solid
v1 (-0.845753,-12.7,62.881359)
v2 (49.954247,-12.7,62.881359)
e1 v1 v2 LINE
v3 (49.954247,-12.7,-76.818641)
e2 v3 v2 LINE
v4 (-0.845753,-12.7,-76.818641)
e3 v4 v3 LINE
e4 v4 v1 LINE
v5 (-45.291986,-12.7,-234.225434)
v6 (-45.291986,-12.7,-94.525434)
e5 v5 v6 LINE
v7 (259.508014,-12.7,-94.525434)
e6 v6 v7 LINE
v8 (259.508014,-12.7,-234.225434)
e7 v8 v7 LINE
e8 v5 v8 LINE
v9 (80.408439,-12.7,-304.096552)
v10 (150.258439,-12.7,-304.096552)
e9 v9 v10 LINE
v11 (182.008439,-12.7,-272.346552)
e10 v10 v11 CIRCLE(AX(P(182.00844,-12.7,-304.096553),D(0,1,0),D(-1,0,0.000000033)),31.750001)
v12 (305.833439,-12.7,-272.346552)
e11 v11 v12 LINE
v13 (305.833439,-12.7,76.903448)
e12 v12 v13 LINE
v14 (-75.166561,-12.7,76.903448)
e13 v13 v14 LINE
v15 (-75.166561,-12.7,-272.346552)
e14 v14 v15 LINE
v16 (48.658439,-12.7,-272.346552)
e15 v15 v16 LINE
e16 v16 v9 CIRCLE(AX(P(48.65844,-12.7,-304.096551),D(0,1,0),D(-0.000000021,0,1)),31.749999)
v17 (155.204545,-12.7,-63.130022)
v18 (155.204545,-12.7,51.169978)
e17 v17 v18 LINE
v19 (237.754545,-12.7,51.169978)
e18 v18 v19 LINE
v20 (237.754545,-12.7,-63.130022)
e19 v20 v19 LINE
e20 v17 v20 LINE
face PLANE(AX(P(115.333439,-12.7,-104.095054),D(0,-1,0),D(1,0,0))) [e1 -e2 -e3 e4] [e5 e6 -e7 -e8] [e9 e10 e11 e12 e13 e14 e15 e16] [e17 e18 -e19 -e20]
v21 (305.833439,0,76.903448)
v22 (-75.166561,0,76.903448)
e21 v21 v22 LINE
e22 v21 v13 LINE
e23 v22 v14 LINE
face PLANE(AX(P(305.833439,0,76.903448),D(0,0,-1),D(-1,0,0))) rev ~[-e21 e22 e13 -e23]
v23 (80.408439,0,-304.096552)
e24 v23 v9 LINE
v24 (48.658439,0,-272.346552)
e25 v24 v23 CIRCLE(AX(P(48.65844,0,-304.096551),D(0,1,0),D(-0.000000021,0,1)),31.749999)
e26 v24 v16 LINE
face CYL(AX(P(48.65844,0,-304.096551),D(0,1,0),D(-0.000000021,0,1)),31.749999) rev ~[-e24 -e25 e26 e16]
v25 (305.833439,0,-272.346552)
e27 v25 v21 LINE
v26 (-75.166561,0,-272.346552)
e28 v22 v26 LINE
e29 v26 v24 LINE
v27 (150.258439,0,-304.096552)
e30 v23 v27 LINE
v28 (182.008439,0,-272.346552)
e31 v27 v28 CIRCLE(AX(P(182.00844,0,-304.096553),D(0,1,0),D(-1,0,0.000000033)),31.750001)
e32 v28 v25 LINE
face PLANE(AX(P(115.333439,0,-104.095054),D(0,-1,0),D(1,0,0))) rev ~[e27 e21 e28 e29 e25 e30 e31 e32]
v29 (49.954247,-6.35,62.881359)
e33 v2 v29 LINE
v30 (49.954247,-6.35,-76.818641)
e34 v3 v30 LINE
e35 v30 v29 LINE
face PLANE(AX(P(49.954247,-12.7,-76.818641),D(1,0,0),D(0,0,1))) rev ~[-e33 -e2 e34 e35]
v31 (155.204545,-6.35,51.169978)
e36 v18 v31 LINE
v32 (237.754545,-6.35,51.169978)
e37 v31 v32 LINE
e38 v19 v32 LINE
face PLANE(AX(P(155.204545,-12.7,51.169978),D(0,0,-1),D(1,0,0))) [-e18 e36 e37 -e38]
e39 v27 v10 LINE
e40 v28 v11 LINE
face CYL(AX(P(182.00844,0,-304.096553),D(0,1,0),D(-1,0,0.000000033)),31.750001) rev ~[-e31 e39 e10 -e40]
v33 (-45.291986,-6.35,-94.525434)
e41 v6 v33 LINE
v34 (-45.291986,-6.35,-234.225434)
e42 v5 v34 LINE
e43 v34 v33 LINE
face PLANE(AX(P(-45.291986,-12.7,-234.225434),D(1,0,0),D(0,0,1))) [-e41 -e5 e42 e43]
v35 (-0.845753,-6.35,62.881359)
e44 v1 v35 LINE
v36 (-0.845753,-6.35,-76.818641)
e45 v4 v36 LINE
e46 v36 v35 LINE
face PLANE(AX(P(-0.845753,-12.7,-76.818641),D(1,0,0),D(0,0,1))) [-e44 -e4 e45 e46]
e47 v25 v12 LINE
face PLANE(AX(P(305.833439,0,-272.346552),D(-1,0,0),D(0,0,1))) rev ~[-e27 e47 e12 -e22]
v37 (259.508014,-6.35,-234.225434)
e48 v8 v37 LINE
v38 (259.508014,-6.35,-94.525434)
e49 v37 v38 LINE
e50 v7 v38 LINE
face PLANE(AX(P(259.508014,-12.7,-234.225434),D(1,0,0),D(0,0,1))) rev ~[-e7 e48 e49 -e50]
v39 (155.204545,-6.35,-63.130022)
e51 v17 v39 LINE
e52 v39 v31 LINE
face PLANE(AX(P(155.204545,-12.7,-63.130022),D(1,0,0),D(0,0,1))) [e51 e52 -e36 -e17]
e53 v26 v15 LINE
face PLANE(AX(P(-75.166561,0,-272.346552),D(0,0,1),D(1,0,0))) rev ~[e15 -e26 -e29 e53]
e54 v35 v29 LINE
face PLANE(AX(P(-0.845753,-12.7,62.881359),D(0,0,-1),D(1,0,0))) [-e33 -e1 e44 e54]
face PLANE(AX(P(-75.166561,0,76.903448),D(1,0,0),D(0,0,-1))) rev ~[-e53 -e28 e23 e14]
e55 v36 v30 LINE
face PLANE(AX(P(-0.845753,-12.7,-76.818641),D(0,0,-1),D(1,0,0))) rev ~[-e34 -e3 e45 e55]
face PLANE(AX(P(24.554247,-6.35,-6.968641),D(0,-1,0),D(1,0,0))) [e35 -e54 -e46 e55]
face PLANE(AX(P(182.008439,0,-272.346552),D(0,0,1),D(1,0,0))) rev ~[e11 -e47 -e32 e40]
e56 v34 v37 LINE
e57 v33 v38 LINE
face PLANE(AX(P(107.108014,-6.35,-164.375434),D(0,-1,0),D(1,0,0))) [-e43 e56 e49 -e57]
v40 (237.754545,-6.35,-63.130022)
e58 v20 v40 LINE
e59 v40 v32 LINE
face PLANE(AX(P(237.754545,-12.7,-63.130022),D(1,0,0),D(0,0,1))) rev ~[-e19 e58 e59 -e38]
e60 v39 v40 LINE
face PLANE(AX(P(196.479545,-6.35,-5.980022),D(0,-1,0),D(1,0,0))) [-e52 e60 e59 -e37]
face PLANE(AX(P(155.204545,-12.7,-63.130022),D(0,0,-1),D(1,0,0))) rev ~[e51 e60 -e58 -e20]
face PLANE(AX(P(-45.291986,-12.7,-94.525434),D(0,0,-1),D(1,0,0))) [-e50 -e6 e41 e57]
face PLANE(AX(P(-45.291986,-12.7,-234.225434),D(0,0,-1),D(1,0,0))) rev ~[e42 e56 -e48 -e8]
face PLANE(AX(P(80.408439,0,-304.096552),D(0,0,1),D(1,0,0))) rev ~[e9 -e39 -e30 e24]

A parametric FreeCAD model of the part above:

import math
import FreeCAD as App
import Part
import Sketcher
Q = App.Units.Quantity

doc = App.newDocument("Part")
body = doc.addObject("PartDesign::Body", "Body")

# Sketch on XZ plane
sketch1 = body.newObject("Sketcher::SketchObject", "Sketch")
sketch1.AttachmentSupport = (doc.getObject("XZ_Plane"), [""])
sketch1.MapMode = "FlatFace"
sketch1.addGeometry([
    Part.LineSegment(App.Vector(305.833439, 76.903448, 0), App.Vector(-75.166561, 76.903448, 0)),  # 0
    Part.LineSegment(App.Vector(-75.166561, 76.903448, 0), App.Vector(-75.166561, -272.346552, 0)),  # 1
    Part.LineSegment(App.Vector(-75.166561, -272.346552, 0), App.Vector(48.658439, -272.346552, 0)),  # 2
    Part.ArcOfCircle(Part.Circle(App.Vector(48.65844, -304.096551, 0), App.Vector(0, 0, 1), 31.749999), math.radians(-0.000001), math.radians(90.000001)),  # 3
    Part.LineSegment(App.Vector(80.408439, -304.096552, 0), App.Vector(150.258439, -304.096552, 0)),  # 4
    Part.ArcOfCircle(Part.Circle(App.Vector(182.00844, -304.096553, 0), App.Vector(0, 0, 1), 31.750001), math.radians(90.000002), math.radians(179.999998)),  # 5
    Part.LineSegment(App.Vector(182.008439, -272.346552, 0), App.Vector(305.833439, -272.346552, 0)),  # 6
    Part.LineSegment(App.Vector(305.833439, -272.346552, 0), App.Vector(305.833439, 76.903448, 0)),  # 7
], False)
sketch1.addConstraint([
    Sketcher.Constraint("Coincident", 0, 2, 1, 1),
    Sketcher.Constraint("Coincident", 1, 2, 2, 1),
    Sketcher.Constraint("Tangent", 2, 2, 3, 2),
    Sketcher.Constraint("Coincident", 3, 1, 4, 1),
    Sketcher.Constraint("Coincident", 4, 2, 5, 2),
    Sketcher.Constraint("Tangent", 5, 1, 6, 1),
    Sketcher.Constraint("Coincident", 6, 2, 7, 1),
    Sketcher.Constraint("Coincident", 7, 2, 0, 1),
    Sketcher.Constraint("Horizontal", 0),
    Sketcher.Constraint("Vertical", 1),
    Sketcher.Constraint("Horizontal", 2),
    Sketcher.Constraint("Horizontal", 4),
    Sketcher.Constraint("Horizontal", 6),
    Sketcher.Constraint("Vertical", 7),
    Sketcher.Constraint("Equal", 3, 5),
    Sketcher.Constraint("Horizontal", 3, 3, 5, 3),
    Sketcher.Constraint("Horizontal", 5, 3, 3, 1),
    Sketcher.Constraint("Equal", 2, 6),
    Sketcher.Constraint("DistanceX", 0, 2, 0, 1, Q("15 in")),
    Sketcher.Constraint("Radius", 3, Q("1.25 in")),
    Sketcher.Constraint("DistanceY", 3, 3, 0, 2, Q("15 in")),
    Sketcher.Constraint("DistanceX", 3, 1, 5, 3, Q("4 in")),
    Sketcher.Constraint("DistanceX", -1, 1, 3, 3, Q("48.65844 mm")),
    Sketcher.Constraint("DistanceY", 3, 3, -1, 1, Q("304.096551 mm")),
])
pad1 = body.newObject("PartDesign::Pad", "Pad")
pad1.Profile = sketch1
pad1.Length = Q("0.5 in")

# Sketch on XZ plane
sketch2 = body.newObject("Sketcher::SketchObject", "Sketch001")
sketch2.AttachmentSupport = (doc.getObject("XZ_Plane"), [""])
sketch2.MapMode = "FlatFace"
sketch2.AttachmentOffset = App.Placement(App.Vector(0, 0, 0.5 * 25.4), App.Rotation())
sketch2.addGeometry([
    Part.LineSegment(App.Vector(-45.291986, -94.525434, 0), App.Vector(-45.291986, -234.225434, 0)),  # 0
    Part.LineSegment(App.Vector(-45.291986, -234.225434, 0), App.Vector(259.508014, -234.225434, 0)),  # 1
    Part.LineSegment(App.Vector(259.508014, -234.225434, 0), App.Vector(259.508014, -94.525434, 0)),  # 2
    Part.LineSegment(App.Vector(259.508014, -94.525434, 0), App.Vector(-45.291986, -94.525434, 0)),  # 3
    Part.LineSegment(App.Vector(-0.845753, 62.881359, 0), App.Vector(-0.845753, -76.818641, 0)),  # 4
    Part.LineSegment(App.Vector(-0.845753, -76.818641, 0), App.Vector(49.954247, -76.818641, 0)),  # 5
    Part.LineSegment(App.Vector(49.954247, -76.818641, 0), App.Vector(49.954247, 62.881359, 0)),  # 6
    Part.LineSegment(App.Vector(49.954247, 62.881359, 0), App.Vector(-0.845753, 62.881359, 0)),  # 7
    Part.LineSegment(App.Vector(155.204545, 51.169978, 0), App.Vector(155.204545, -63.130022, 0)),  # 8
    Part.LineSegment(App.Vector(155.204545, -63.130022, 0), App.Vector(237.754545, -63.130022, 0)),  # 9
    Part.LineSegment(App.Vector(237.754545, -63.130022, 0), App.Vector(237.754545, 51.169978, 0)),  # 10
    Part.LineSegment(App.Vector(237.754545, 51.169978, 0), App.Vector(155.204545, 51.169978, 0)),  # 11
], False)
sketch2.addConstraint([
    Sketcher.Constraint("Coincident", 0, 2, 1, 1),
    Sketcher.Constraint("Coincident", 1, 2, 2, 1),
    Sketcher.Constraint("Coincident", 2, 2, 3, 1),
    Sketcher.Constraint("Coincident", 3, 2, 0, 1),
    Sketcher.Constraint("Coincident", 4, 2, 5, 1),
    Sketcher.Constraint("Coincident", 5, 2, 6, 1),
    Sketcher.Constraint("Coincident", 6, 2, 7, 1),
    Sketcher.Constraint("Coincident", 7, 2, 4, 1),
    Sketcher.Constraint("Coincident", 8, 2, 9, 1),
    Sketcher.Constraint("Coincident", 9, 2, 10, 1),
    Sketcher.Constraint("Coincident", 10, 2, 11, 1),
    Sketcher.Constraint("Coincident", 11, 2, 8, 1),
    Sketcher.Constraint("Vertical", 0),
    Sketcher.Constraint("Horizontal", 1),
    Sketcher.Constraint("Vertical", 2),
    Sketcher.Constraint("Horizontal", 3),
    Sketcher.Constraint("Vertical", 4),
    Sketcher.Constraint("Horizontal", 5),
    Sketcher.Constraint("Vertical", 6),
    Sketcher.Constraint("Horizontal", 7),
    Sketcher.Constraint("Vertical", 8),
    Sketcher.Constraint("Horizontal", 9),
    Sketcher.Constraint("Vertical", 10),
    Sketcher.Constraint("Horizontal", 11),
    Sketcher.Constraint("Equal", 2, 4),
    Sketcher.Constraint("DistanceX", 1, 1, 1, 2, Q("12 in")),
    Sketcher.Constraint("DistanceX", 5, 1, 5, 2, Q("2 in")),
    Sketcher.Constraint("DistanceY", 0, 2, 0, 1, Q("5.5 in")),
    Sketcher.Constraint("DistanceY", 8, 2, 8, 1, Q("4.5 in")),
    Sketcher.Constraint("DistanceX", 9, 1, 9, 2, Q("3.25 in")),
    Sketcher.Constraint("DistanceX", 4, 2, 8, 2, Q("156.050298 mm")),
    Sketcher.Constraint("DistanceY", 4, 2, -1, 1, Q("76.818641 mm")),
    Sketcher.Constraint("DistanceY", 8, 2, -1, 1, Q("63.130022 mm")),
    Sketcher.Constraint("DistanceX", 8, 2, 2, 2, Q("104.303469 mm")),
    Sketcher.Constraint("DistanceY", 2, 2, 10, 2, Q("145.695412 mm")),
    Sketcher.Constraint("DistanceX", 0, 2, -1, 1, Q("45.291986 mm")),
])
pocket1 = body.newObject("PartDesign::Pocket", "Pocket")
pocket1.Profile = sketch2
pocket1.Length = Q("0.25 in")

doc.recompute()
